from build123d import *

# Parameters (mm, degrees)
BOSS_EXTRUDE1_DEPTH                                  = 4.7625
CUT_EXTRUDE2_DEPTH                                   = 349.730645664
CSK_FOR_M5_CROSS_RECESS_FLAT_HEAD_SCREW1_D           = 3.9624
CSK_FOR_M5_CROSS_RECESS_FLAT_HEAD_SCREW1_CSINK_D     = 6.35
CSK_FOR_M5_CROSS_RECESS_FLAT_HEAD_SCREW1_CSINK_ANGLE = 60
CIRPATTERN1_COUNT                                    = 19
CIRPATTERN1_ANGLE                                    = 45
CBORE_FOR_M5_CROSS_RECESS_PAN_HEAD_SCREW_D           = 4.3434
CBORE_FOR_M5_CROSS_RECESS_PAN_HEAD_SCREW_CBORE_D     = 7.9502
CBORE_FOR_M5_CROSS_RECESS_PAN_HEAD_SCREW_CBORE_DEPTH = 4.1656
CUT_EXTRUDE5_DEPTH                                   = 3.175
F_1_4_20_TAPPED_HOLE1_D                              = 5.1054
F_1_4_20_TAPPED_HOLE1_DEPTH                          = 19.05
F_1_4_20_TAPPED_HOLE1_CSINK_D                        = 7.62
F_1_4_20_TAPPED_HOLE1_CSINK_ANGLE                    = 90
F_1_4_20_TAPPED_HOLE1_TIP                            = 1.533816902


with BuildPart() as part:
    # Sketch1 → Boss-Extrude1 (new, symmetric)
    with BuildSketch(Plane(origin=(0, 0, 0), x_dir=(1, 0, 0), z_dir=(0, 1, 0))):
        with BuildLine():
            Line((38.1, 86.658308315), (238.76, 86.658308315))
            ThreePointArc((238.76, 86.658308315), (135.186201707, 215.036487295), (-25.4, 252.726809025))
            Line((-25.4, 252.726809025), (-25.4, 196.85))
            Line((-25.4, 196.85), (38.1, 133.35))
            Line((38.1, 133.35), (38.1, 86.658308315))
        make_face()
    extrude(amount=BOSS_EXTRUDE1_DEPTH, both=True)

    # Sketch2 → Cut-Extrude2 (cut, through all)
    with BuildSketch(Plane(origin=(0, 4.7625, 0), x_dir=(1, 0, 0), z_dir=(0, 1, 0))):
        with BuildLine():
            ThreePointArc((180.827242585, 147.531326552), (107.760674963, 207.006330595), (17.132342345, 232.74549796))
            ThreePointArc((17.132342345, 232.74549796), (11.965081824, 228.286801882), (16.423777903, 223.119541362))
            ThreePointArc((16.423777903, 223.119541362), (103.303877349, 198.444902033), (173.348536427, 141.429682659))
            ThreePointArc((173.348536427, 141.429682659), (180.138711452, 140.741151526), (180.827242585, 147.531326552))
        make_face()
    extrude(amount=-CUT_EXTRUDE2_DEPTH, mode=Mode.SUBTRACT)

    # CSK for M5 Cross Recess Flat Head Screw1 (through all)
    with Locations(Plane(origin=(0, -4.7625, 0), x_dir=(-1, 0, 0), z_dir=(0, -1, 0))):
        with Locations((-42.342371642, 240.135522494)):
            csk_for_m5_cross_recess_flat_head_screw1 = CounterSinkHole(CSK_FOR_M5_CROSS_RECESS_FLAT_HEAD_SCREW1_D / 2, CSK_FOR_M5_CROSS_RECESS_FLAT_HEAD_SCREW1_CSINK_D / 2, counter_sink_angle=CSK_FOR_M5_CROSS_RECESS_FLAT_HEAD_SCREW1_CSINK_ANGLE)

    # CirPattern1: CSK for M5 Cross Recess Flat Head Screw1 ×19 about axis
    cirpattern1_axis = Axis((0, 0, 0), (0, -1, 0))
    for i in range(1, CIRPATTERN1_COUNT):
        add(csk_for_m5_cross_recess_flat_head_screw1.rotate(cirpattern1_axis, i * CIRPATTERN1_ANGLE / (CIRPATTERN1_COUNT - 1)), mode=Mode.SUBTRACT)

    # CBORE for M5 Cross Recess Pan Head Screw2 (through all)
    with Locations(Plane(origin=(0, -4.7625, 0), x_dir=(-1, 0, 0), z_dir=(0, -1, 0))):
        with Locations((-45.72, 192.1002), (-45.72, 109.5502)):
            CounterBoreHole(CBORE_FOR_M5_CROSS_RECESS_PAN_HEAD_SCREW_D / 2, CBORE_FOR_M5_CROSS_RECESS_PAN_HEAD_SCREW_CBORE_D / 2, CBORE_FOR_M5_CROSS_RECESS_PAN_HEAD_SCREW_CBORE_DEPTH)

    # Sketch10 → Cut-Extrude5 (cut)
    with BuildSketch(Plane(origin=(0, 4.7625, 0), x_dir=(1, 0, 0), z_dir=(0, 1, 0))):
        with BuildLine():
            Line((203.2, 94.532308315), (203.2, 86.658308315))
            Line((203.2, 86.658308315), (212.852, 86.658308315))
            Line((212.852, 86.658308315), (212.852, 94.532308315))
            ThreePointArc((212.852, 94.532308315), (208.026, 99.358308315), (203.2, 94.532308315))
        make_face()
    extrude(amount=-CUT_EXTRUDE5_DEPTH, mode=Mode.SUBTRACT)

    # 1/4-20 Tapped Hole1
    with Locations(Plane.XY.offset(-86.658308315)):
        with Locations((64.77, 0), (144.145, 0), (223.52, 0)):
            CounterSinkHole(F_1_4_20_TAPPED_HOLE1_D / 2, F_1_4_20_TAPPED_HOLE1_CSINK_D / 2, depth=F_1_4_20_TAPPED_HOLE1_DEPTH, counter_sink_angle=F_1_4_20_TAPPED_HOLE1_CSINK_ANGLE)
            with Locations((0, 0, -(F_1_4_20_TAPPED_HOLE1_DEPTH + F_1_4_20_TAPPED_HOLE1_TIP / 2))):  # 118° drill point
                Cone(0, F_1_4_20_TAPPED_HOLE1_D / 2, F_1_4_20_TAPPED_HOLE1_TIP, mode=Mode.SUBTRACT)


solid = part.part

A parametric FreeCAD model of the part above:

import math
import FreeCAD as App
import Part
import Sketcher
Q = App.Units.Quantity

doc = App.newDocument("Part")
body = doc.addObject("PartDesign::Body", "Body")

# Sketch on XZ plane
sketch1 = body.newObject("Sketcher::SketchObject", "Sketch")
sketch1.AttachmentSupport = (doc.getObject("XZ_Plane"), [""])
sketch1.MapMode = "FlatFace"
sketch1.addGeometry([
    Part.LineSegment(App.Vector(38.1, -86.658308, 0), App.Vector(238.76, -86.658308, 0)),  # 0
    Part.ArcOfCircle(Part.Circle(App.Vector(0, 0, 0), App.Vector(0, 0, 1), 254), math.radians(-95.73917), math.radians(-19.948444)),  # 1
    Part.LineSegment(App.Vector(-25.4, -252.726809, 0), App.Vector(-25.4, -196.85, 0)),  # 2
    Part.LineSegment(App.Vector(-25.4, -196.85, 0), App.Vector(38.1, -133.35, 0)),  # 3
    Part.LineSegment(App.Vector(38.1, -133.35, 0), App.Vector(38.1, -86.658308, 0)),  # 4
], False)
sketch1.addConstraint([
    Sketcher.Constraint("Coincident", 0, 2, 1, 2),
    Sketcher.Constraint("Coincident", 1, 1, 2, 1),
    Sketcher.Constraint("Coincident", 2, 2, 3, 1),
    Sketcher.Constraint("Coincident", 3, 2, 4, 1),
    Sketcher.Constraint("Coincident", 4, 2, 0, 1),
    Sketcher.Constraint("Horizontal", 0),
    Sketcher.Constraint("Vertical", 2),
    Sketcher.Constraint("Vertical", 4),
    Sketcher.Constraint("Coincident", 1, 3, -1, 1),
    Sketcher.Constraint("Radius", 1, Q("10 in")),
    Sketcher.Constraint("DistanceX", 0, 1, 0, 2, Q("7.9 in")),
    Sketcher.Constraint("DistanceX", 1, 1, -1, 1, Q("1 in")),
    Sketcher.Constraint("Angle", 3, Q("45 deg")),
    Sketcher.Constraint("DistanceX", -1, 1, 0, 2, Q("9.4 in")),
    Sketcher.Constraint("DistanceY", 2, 2, -1, 1, Q("7.75 in")),
])
pad1 = body.newObject("PartDesign::Pad", "Pad")
pad1.Profile = sketch1
pad1.Length = Q("0.375 in")
pad1.Midplane = True

# Sketch on XZ plane
sketch2 = body.newObject("Sketcher::SketchObject", "Sketch001")
sketch2.AttachmentSupport = (doc.getObject("XZ_Plane"), [""])
sketch2.MapMode = "FlatFace"
sketch2.AttachmentOffset = App.Placement(App.Vector(0, 0, -0.1875 * 25.4), App.Rotation())
sketch2.addGeometry([
    Part.ArcOfCircle(Part.Circle(App.Vector(0, 0, 0), App.Vector(0, 0, 1), 233.3752), math.radians(-85.790064), math.radians(-39.209936)),
    Part.ArcOfCircle(Part.Circle(App.Vector(16.77806, -227.93252, 0), App.Vector(0, 0, 1), 4.826), math.radians(94.209936), math.radians(274.209936)),
    Part.ArcOfCircle(Part.Circle(App.Vector(0, 0, 0), App.Vector(0, 0, 1), 223.7232), math.radians(-85.790064), math.radians(-39.209936)),
    Part.ArcOfCircle(Part.Circle(App.Vector(177.08789, -144.480505, 0), App.Vector(0, 0, 1), 4.826), math.radians(-39.209936), math.radians(140.790064)),
], False)
sketch2.addConstraint([
    Sketcher.Constraint("Tangent", 0, 1, 1, 2),
    Sketcher.Constraint("Tangent", 1, 1, 2, 1),
    Sketcher.Constraint("Tangent", 2, 2, 3, 2),
    Sketcher.Constraint("Tangent", 3, 1, 0, 2),
    Sketcher.Constraint("Coincident", 0, 3, -1, 1),
    Sketcher.Constraint("Coincident", 2, 3, -1, 1),
    Sketcher.Constraint("Radius", 1, Q("0.19 in")),
    Sketcher.Constraint("Radius", 0, Q("9.188 in")),
    Sketcher.Constraint("DistanceX", 0, 1, 3, 1, Q("163.6949 mm")),
    Sketcher.Constraint("DistanceX", -1, 1, 1, 3, Q("16.77806 mm")),
])
pocket1 = body.newObject("PartDesign::Pocket", "Pocket")
pocket1.Profile = sketch2
pocket1.Type = "ThroughAll"
pocket1.Reversed = True

# Sketch on XZ plane
sketch3 = body.newObject("Sketcher::SketchObject", "Sketch002")
sketch3.AttachmentSupport = (doc.getObject("XZ_Plane"), [""])
sketch3.MapMode = "FlatFace"
sketch3.AttachmentOffset = App.Placement(App.Vector(0, 0, 0.1875 * 25.4), App.Rotation())
sketch3.addGeometry(Part.Circle(App.Vector(42.342372, -240.135522, 0), App.Vector(0, 0, 1), 1.9812), False)
sketch3.addConstraint([
    Sketcher.Constraint("Diameter", 0, Q("0.156 in")),
    Sketcher.Constraint("DistanceX", -1, 1, 0, 3, Q("42.342372 mm")),
    Sketcher.Constraint("DistanceY", 0, 3, -1, 1, Q("240.135522 mm")),
])
doc.recompute()
hole = body.newObject("PartDesign::Hole", "Hole")
hole.Profile = sketch3
hole.ThreadType = "None"
hole.Diameter = Q("0.156 in")
hole.DepthType = "ThroughAll"
hole.HoleCutType = "Countersink"
hole.HoleCutDiameter = Q("0.25 in")
hole.HoleCutCountersinkAngle = 60
doc.recompute()

polarpattern = body.newObject("PartDesign::PolarPattern", "PolarPattern")
polarpattern.Originals = [hole]
polarpattern.Axis = (doc.getObject("Y_Axis"), [""])
polarpattern.Angle = 45
polarpattern.Occurrences = 19
polarpattern.Reversed = True
body.Tip = polarpattern

# Sketch on XZ plane
sketch4 = body.newObject("Sketcher::SketchObject", "Sketch003")
sketch4.AttachmentSupport = (doc.getObject("XZ_Plane"), [""])
sketch4.MapMode = "FlatFace"
sketch4.AttachmentOffset = App.Placement(App.Vector(0, 0, 0.1875 * 25.4), App.Rotation())
sketch4.addGeometry([
    Part.Circle(App.Vector(45.72, -192.1002, 0), App.Vector(0, 0, 1), 2.1717),
    Part.Circle(App.Vector(45.72, -109.5502, 0), App.Vector(0, 0, 1), 2.1717),
], False)
sketch4.addConstraint([
    Sketcher.Constraint("Equal", 0, 1),
    Sketcher.Constraint("Vertical", 0, 3, 1, 3),
    Sketcher.Constraint("Diameter", 0, Q("0.171 in")),
    Sketcher.Constraint("DistanceX", -1, 1, 0, 3, Q("1.8 in")),
    Sketcher.Constraint("DistanceY", 0, 3, 1, 3, Q("3.25 in")),
    Sketcher.Constraint("DistanceY", 0, 3, -1, 1, Q("7.563 in")),
])
doc.recompute()
hole2 = body.newObject("PartDesign::Hole", "Hole001")
hole2.Profile = sketch4
hole2.ThreadType = "None"
hole2.Diameter = Q("0.171 in")
hole2.DepthType = "ThroughAll"
hole2.HoleCutType = "Counterbore"
hole2.HoleCutDiameter = Q("0.313 in")
hole2.HoleCutDepth = Q("0.164 in")

# Sketch on XZ plane
sketch5 = body.newObject("Sketcher::SketchObject", "Sketch004")
sketch5.AttachmentSupport = (doc.getObject("XZ_Plane"), [""])
sketch5.MapMode = "FlatFace"
sketch5.AttachmentOffset = App.Placement(App.Vector(0, 0, -0.1875 * 25.4), App.Rotation())
sketch5.addGeometry([
    Part.LineSegment(App.Vector(203.2, -94.532308, 0), App.Vector(203.2, -86.658308, 0)),
    Part.LineSegment(App.Vector(203.2, -86.658308, 0), App.Vector(212.852, -86.658308, 0)),
    Part.LineSegment(App.Vector(212.852, -86.658308, 0), App.Vector(212.852, -94.532308, 0)),
    Part.ArcOfCircle(Part.Circle(App.Vector(208.026, -94.532308, 0), App.Vector(0, 0, 1), 4.826), math.radians(180), math.radians(360)),
], False)
sketch5.addConstraint([
    Sketcher.Constraint("Coincident", 0, 2, 1, 1),
    Sketcher.Constraint("Coincident", 1, 2, 2, 1),
    Sketcher.Constraint("Tangent", 2, 2, 3, 2),
    Sketcher.Constraint("Tangent", 3, 1, 0, 1),
    Sketcher.Constraint("Vertical", 0),
    Sketcher.Constraint("Horizontal", 1),
    Sketcher.Constraint("Vertical", 2),
    Sketcher.Constraint("Radius", 3, Q("0.19 in")),
    Sketcher.Constraint("DistanceX", -1, 1, 0, 2, Q("8 in")),
    Sketcher.Constraint("DistanceY", 0, 1, 0, 2, Q("0.31 in")),
    Sketcher.Constraint("DistanceY", 3, 3, -1, 1, Q("94.532308 mm")),
])
pocket2 = body.newObject("PartDesign::Pocket", "Pocket001")
pocket2.Profile = sketch5
pocket2.Length = Q("0.125 in")
pocket2.Reversed = True

# Sketch on XY plane
sketch6 = body.newObject("Sketcher::SketchObject", "Sketch005")
sketch6.AttachmentSupport = (doc.getObject("XY_Plane"), [""])
sketch6.MapMode = "FlatFace"
sketch6.AttachmentOffset = App.Placement(App.Vector(0, 0, -86.658308), App.Rotation())
sketch6.addGeometry([
    Part.Circle(App.Vector(64.77, 0, 0), App.Vector(0, 0, 1), 2.5527),
    Part.Circle(App.Vector(144.145, 0, 0), App.Vector(0, 0, 1), 2.5527),
    Part.Circle(App.Vector(223.52, 0, 0), App.Vector(0, 0, 1), 2.5527),
], False)
sketch6.addConstraint([
    Sketcher.Constraint("Equal", 0, 1),
    Sketcher.Constraint("Equal", 1, 2),
    Sketcher.Constraint("PointOnObject", 0, 3, -1),
    Sketcher.Constraint("PointOnObject", 1, 3, -1),
    Sketcher.Constraint("PointOnObject", 2, 3, -1),
    Sketcher.Constraint("Diameter", 0, Q("0.201 in")),
    Sketcher.Constraint("DistanceX", -1, 1, 2, 3, Q("8.8 in")),
    Sketcher.Constraint("DistanceX", -1, 1, 0, 3, Q("2.55 in")),
    Sketcher.Constraint("DistanceX", -1, 1, 1, 3, Q("5.675 in")),
])
doc.recompute()
hole3 = body.newObject("PartDesign::Hole", "Hole002")
hole3.Profile = sketch6
hole3.ThreadType = "None"
hole3.Diameter = Q("0.201 in")
hole3.DepthType = "Dimension"
hole3.Depth = Q("0.75 in")
hole3.DrillPoint = "Angled"
hole3.DrillPointAngle = 118
hole3.HoleCutType = "Countersink"
hole3.HoleCutDiameter = Q("0.3 in")
hole3.HoleCutCountersinkAngle = 90

doc.recompute()
